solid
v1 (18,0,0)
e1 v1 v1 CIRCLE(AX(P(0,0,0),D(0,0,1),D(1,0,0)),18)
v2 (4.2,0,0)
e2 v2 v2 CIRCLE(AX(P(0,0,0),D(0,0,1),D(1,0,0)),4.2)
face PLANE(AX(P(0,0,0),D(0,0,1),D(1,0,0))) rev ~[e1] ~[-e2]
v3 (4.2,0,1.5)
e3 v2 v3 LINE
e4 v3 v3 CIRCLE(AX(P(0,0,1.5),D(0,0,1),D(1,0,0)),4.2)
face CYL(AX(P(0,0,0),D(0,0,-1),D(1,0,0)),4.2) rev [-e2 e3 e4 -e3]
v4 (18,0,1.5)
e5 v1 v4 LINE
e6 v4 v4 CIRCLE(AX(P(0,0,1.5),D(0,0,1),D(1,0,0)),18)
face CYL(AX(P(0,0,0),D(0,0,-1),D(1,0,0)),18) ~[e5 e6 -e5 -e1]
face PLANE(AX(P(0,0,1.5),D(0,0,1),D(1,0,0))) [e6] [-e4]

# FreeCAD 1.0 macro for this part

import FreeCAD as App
import Part
import Sketcher

doc = App.newDocument("Part")
params = doc.addObject("Spreadsheet::Sheet", "Params")
for row, (alias, value) in enumerate([
    ("sketch1_diameter", "36 mm"),
    ("sketch1_diameter2", "8.4 mm"),
    ("pad1_length", "1.5 mm"),
], start=1):
    params.set(f"A{row}", alias)
    params.set(f"B{row}", "=" + value)
    params.setAlias(f"B{row}", alias)

body = doc.addObject("PartDesign::Body", "Body")

# Sketch on XY plane
sketch1 = body.newObject("Sketcher::SketchObject", "Sketch")
sketch1.AttachmentSupport = (doc.getObject("XY_Plane"), [""])
sketch1.MapMode = "FlatFace"
sketch1.addGeometry([
    Part.Circle(App.Vector(0, 0, 0), App.Vector(0, 0, 1), 18),
    Part.Circle(App.Vector(0, 0, 0), App.Vector(0, 0, 1), 4.2),
], False)
sketch1.addConstraint([
    Sketcher.Constraint("Coincident", 0, 3, -1, 1),
    Sketcher.Constraint("Coincident", 1, 3, -1, 1),
    Sketcher.Constraint("Diameter", 0, 36.0),
    Sketcher.Constraint("Diameter", 1, 8.4),
])
sketch1.setExpression("Constraints[2]", "Params.sketch1_diameter")
sketch1.setExpression("Constraints[3]", "Params.sketch1_diameter2")
pad1 = body.newObject("PartDesign::Pad", "Pad")
pad1.Profile = sketch1
pad1.setExpression("Length", "Params.pad1_length")

doc.recompute()
